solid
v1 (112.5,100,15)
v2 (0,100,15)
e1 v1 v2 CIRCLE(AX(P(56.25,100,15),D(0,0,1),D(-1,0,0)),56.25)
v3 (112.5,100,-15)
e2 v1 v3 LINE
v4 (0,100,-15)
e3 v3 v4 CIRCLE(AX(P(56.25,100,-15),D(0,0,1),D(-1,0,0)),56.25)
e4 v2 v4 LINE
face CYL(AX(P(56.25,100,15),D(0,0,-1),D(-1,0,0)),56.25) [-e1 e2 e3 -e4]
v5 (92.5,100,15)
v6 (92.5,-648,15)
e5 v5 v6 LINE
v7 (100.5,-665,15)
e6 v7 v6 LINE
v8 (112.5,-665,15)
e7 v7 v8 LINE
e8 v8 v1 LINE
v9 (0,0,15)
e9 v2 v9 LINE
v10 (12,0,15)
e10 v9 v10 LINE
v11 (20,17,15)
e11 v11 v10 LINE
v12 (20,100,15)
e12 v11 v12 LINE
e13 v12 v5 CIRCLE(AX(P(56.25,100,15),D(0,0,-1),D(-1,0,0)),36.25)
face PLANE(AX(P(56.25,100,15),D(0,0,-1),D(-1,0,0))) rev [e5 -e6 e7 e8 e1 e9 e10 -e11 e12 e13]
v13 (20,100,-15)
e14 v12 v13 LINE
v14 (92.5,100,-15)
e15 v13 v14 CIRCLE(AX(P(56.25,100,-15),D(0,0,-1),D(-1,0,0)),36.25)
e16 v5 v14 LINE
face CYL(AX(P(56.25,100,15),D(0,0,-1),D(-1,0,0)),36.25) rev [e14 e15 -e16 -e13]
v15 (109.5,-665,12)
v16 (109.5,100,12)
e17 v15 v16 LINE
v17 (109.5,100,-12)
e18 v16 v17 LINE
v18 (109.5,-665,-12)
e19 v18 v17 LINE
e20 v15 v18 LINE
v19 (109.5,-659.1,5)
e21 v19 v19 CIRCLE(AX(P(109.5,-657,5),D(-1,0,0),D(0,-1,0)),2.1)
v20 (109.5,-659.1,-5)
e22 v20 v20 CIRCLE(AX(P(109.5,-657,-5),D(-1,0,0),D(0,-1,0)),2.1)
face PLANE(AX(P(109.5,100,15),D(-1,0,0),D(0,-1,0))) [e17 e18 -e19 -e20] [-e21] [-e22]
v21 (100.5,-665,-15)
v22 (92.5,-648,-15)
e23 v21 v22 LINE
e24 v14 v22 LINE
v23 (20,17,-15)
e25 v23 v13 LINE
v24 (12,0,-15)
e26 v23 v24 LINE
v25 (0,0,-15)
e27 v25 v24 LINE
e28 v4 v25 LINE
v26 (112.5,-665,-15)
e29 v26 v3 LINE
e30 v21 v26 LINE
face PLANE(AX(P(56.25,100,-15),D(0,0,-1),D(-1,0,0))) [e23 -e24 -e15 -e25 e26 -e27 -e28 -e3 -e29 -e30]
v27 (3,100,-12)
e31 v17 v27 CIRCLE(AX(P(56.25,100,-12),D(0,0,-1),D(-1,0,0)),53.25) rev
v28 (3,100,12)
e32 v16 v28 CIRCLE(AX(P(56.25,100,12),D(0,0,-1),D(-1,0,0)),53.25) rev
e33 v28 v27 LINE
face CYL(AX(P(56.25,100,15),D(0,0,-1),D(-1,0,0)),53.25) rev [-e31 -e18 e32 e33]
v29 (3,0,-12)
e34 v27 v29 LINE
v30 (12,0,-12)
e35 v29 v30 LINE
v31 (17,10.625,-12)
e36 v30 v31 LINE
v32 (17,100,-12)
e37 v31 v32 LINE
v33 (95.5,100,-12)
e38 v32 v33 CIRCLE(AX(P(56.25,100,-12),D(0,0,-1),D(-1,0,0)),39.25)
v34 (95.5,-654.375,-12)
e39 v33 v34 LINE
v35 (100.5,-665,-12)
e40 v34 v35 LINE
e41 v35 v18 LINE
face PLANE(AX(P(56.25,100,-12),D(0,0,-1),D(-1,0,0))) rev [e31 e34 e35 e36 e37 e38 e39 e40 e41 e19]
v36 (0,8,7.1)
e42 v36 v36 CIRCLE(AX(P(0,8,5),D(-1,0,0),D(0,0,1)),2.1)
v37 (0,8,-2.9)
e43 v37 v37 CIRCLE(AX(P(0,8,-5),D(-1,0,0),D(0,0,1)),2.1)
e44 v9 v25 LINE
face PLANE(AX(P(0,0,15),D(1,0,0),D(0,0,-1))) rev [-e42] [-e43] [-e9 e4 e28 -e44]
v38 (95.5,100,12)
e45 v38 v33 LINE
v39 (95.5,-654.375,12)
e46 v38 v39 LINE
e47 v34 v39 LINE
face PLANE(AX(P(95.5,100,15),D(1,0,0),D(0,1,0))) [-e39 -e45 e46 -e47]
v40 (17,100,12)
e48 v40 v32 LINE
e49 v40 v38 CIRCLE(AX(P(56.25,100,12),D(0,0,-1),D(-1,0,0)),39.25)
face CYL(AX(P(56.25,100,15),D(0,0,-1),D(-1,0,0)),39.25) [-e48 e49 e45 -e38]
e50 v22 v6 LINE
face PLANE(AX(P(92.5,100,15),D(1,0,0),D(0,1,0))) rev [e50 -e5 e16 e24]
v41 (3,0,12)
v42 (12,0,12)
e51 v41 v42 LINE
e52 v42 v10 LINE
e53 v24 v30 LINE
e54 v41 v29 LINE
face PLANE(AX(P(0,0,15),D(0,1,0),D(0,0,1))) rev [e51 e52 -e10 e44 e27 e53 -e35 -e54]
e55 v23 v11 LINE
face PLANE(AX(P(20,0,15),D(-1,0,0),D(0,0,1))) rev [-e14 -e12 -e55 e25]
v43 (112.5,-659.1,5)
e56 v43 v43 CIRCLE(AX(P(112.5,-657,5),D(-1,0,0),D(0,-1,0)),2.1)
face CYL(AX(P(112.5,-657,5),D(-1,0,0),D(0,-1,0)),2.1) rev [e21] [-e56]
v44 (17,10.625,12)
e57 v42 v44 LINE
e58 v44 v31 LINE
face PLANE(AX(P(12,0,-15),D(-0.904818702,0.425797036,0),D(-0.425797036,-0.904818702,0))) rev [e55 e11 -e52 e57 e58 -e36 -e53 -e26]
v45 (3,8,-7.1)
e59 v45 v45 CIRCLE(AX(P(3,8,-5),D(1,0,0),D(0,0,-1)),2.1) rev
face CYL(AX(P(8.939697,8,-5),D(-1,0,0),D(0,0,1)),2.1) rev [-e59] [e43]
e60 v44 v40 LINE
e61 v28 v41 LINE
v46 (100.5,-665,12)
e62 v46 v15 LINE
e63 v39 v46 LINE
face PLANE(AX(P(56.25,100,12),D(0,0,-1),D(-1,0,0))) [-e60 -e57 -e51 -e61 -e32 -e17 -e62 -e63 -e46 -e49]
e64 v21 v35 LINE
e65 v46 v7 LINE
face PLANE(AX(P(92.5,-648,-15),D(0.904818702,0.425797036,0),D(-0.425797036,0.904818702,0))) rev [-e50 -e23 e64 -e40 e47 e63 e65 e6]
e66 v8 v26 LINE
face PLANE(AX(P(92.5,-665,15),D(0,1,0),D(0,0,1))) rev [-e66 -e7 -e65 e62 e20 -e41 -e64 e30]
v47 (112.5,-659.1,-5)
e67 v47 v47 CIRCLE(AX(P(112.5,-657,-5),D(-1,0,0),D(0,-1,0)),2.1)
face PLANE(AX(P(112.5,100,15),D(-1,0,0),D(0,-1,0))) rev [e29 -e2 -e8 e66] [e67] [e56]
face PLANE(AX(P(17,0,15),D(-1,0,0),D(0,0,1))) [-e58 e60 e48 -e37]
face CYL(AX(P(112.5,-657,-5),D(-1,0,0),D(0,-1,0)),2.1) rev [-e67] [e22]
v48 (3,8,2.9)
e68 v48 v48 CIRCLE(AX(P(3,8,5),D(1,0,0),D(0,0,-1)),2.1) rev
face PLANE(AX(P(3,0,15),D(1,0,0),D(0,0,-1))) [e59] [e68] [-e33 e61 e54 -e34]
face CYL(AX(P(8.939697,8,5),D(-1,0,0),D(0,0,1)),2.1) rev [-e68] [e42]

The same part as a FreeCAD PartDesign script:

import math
import FreeCAD as App
import Part
import Sketcher

V = App.Vector


def faces_at(feature, points):
    """Names of the faces that lie closest to the given points."""
    faces = feature.Shape.Faces
    near = lambda p: min(range(len(faces)), key=lambda i: faces[i].distToShape(Part.Vertex(*p))[0])
    return sorted({f"Face{near(p) + 1}" for p in points})


def add_polygon(sketch, points):
    """Adds a closed chain of lines whose ends are joined by coincident constraints."""
    first, n = sketch.GeometryCount, len(points)
    for a, b in zip(points, points[1:] + points[:1]):
        sketch.addGeometry(Part.LineSegment(App.Vector(*a, 0), App.Vector(*b, 0)), False)
    for i in range(n):
        sketch.addConstraint(Sketcher.Constraint("Coincident", first + i, 2, first + (i + 1) % n, 1))

doc = App.newDocument("Part")
body = doc.addObject("PartDesign::Body", "Body")

# Sketch on XY plane
sketch1 = body.newObject("Sketcher::SketchObject", "Sketch")
sketch1.AttachmentSupport = (doc.getObject("XY_Plane"), [""])
sketch1.MapMode = "FlatFace"
sketch1.addGeometry([
    Part.LineSegment(V(0, 100, 0), V(0, 0, 0)),  # 0
    Part.LineSegment(V(0, 0, 0), V(20, 0, 0)),  # 1
    Part.LineSegment(V(20, 0, 0), V(20, 100, 0)),  # 2
    Part.ArcOfCircle(Part.Circle(V(56.25, 100, 0), V(0, 0, 1), 36.25), math.radians(0), math.radians(180)),  # 3
    Part.LineSegment(V(92.5, 100, 0), V(92.5, -665, 0)),  # 4
    Part.LineSegment(V(92.5, -665, 0), V(112.5, -665, 0)),  # 5
    Part.LineSegment(V(112.5, -665, 0), V(112.5, 100, 0)),  # 6
    Part.ArcOfCircle(Part.Circle(V(56.25, 100, 0), V(0, 0, 1), 56.25), math.radians(0), math.radians(180)),  # 7
], False)
sketch1.addConstraint([
    Sketcher.Constraint("Coincident", 0, 2, 1, 1),
    Sketcher.Constraint("Coincident", 1, 2, 2, 1),
    Sketcher.Constraint("Tangent", 2, 2, 3, 2),
    Sketcher.Constraint("Tangent", 3, 1, 4, 1),
    Sketcher.Constraint("Coincident", 4, 2, 5, 1),
    Sketcher.Constraint("Coincident", 5, 2, 6, 1),
    Sketcher.Constraint("Tangent", 6, 2, 7, 1),
    Sketcher.Constraint("Tangent", 7, 2, 0, 1),
    Sketcher.Constraint("Vertical", 0),
    Sketcher.Constraint("Horizontal", 1),
    Sketcher.Constraint("Vertical", 2),
    Sketcher.Constraint("Vertical", 4),
    Sketcher.Constraint("Horizontal", 5),
    Sketcher.Constraint("Vertical", 6),
    Sketcher.Constraint("Coincident", 0, 2, -1, 1),
    Sketcher.Constraint("Coincident", 7, 3, 3, 3),
    Sketcher.Constraint("DistanceX", 1, 1, 1, 2, 20.0),
    Sketcher.Constraint("DistanceY", 0, 2, 0, 1, 100.0),
    Sketcher.Constraint("DistanceY", 4, 2, 4, 1, 765.0),
    Sketcher.Constraint("Radius", 3, 36.25),
])
pad1 = body.newObject("PartDesign::Pad", "Pad")
pad1.Profile = sketch1
pad1.Length = 30
pad1.Midplane = True
doc.recompute()

thickness = body.newObject("PartDesign::Thickness", "Thickness")
thickness.Base = (pad1, faces_at(pad1, [(102.5, -665, 0), (10, 0, 0)]))
thickness.Value = 3
thickness.Reversed = True
thickness.Join = "Intersection"

# Sketch on XY plane
sketch2 = body.newObject("Sketcher::SketchObject", "Sketch001")
sketch2.AttachmentSupport = (doc.getObject("XY_Plane"), [""])
sketch2.MapMode = "FlatFace"
sketch2.AttachmentOffset = App.Placement(V(0, 0, 15), App.Rotation())
add_polygon(sketch2, [(20, 17), (12, 0), (20, 0)])  # lines 0-2
add_polygon(sketch2, [(92.5, -648), (92.5, -665), (100.5, -665)])  # lines 3-5
sketch2.addConstraint([
    Sketcher.Constraint("Horizontal", 1),
    Sketcher.Constraint("Vertical", 2),
    Sketcher.Constraint("Vertical", 3),
    Sketcher.Constraint("Horizontal", 4),
    Sketcher.Constraint("PointOnObject", 0, 2, -1),
    Sketcher.Constraint("Equal", 1, 4),
    Sketcher.Constraint("Equal", 2, 3),
    Sketcher.Constraint("DistanceX", 1, 1, 1, 2, 8.0),
    Sketcher.Constraint("DistanceY", 2, 1, 2, 2, 17.0),
    Sketcher.Constraint("DistanceX", -1, 1, 0, 2, 12.0),
    Sketcher.Constraint("DistanceY", 3, 2, -1, 1, 665.0),
    Sketcher.Constraint("DistanceX", -1, 1, 3, 2, 92.5),
])
pocket1 = body.newObject("PartDesign::Pocket", "Pocket")
pocket1.Profile = sketch2
pocket1.Type = "ThroughAll"

# Sketch on YZ plane
sketch3 = body.newObject("Sketcher::SketchObject", "Sketch002")
sketch3.AttachmentSupport = (doc.getObject("YZ_Plane"), [""])
sketch3.MapMode = "FlatFace"
sketch3.AttachmentOffset = App.Placement(V(0, 0, 109.5), App.Rotation())
sketch3.addGeometry([
    Part.Circle(V(-657, -5, 0), V(0, 0, 1), 2.1),
    Part.Circle(V(-657, 5, 0), V(0, 0, 1), 2.1),
], False)
sketch3.addConstraint([
    Sketcher.Constraint("Equal", 0, 1),
    Sketcher.Constraint("Symmetric", 0, 3, 1, 3, -1),
    Sketcher.Constraint("Diameter", 0, 4.2),
    Sketcher.Constraint("DistanceX", 0, 3, -1, 1, 657.0),
    Sketcher.Constraint("DistanceY", 0, 3, -1, 1, 5.0),
])
pocket2 = body.newObject("PartDesign::Pocket", "Pocket001")
pocket2.Profile = sketch3
pocket2.Type = "ThroughAll"
pocket2.Reversed = True

# Sketch on YZ plane
sketch4 = body.newObject("Sketcher::SketchObject", "Sketch003")
sketch4.AttachmentSupport = (doc.getObject("YZ_Plane"), [""])
sketch4.MapMode = "FlatFace"
sketch4.addGeometry([
    Part.Circle(V(8, -5, 0), V(0, 0, 1), 2.1),
    Part.Circle(V(8, 5, 0), V(0, 0, 1), 2.1),
], False)
sketch4.addConstraint([
    Sketcher.Constraint("Equal", 0, 1),
    Sketcher.Constraint("Symmetric", 0, 3, 1, 3, -1),
    Sketcher.Constraint("Diameter", 0, 4.2),
    Sketcher.Constraint("DistanceX", -1, 1, 0, 3, 8.0),
    Sketcher.Constraint("DistanceY", 0, 3, -1, 1, 5.0),
])
pocket3 = body.newObject("PartDesign::Pocket", "Pocket002")
pocket3.Profile = sketch4
pocket3.Length = 3
pocket3.Reversed = True

doc.recompute()
